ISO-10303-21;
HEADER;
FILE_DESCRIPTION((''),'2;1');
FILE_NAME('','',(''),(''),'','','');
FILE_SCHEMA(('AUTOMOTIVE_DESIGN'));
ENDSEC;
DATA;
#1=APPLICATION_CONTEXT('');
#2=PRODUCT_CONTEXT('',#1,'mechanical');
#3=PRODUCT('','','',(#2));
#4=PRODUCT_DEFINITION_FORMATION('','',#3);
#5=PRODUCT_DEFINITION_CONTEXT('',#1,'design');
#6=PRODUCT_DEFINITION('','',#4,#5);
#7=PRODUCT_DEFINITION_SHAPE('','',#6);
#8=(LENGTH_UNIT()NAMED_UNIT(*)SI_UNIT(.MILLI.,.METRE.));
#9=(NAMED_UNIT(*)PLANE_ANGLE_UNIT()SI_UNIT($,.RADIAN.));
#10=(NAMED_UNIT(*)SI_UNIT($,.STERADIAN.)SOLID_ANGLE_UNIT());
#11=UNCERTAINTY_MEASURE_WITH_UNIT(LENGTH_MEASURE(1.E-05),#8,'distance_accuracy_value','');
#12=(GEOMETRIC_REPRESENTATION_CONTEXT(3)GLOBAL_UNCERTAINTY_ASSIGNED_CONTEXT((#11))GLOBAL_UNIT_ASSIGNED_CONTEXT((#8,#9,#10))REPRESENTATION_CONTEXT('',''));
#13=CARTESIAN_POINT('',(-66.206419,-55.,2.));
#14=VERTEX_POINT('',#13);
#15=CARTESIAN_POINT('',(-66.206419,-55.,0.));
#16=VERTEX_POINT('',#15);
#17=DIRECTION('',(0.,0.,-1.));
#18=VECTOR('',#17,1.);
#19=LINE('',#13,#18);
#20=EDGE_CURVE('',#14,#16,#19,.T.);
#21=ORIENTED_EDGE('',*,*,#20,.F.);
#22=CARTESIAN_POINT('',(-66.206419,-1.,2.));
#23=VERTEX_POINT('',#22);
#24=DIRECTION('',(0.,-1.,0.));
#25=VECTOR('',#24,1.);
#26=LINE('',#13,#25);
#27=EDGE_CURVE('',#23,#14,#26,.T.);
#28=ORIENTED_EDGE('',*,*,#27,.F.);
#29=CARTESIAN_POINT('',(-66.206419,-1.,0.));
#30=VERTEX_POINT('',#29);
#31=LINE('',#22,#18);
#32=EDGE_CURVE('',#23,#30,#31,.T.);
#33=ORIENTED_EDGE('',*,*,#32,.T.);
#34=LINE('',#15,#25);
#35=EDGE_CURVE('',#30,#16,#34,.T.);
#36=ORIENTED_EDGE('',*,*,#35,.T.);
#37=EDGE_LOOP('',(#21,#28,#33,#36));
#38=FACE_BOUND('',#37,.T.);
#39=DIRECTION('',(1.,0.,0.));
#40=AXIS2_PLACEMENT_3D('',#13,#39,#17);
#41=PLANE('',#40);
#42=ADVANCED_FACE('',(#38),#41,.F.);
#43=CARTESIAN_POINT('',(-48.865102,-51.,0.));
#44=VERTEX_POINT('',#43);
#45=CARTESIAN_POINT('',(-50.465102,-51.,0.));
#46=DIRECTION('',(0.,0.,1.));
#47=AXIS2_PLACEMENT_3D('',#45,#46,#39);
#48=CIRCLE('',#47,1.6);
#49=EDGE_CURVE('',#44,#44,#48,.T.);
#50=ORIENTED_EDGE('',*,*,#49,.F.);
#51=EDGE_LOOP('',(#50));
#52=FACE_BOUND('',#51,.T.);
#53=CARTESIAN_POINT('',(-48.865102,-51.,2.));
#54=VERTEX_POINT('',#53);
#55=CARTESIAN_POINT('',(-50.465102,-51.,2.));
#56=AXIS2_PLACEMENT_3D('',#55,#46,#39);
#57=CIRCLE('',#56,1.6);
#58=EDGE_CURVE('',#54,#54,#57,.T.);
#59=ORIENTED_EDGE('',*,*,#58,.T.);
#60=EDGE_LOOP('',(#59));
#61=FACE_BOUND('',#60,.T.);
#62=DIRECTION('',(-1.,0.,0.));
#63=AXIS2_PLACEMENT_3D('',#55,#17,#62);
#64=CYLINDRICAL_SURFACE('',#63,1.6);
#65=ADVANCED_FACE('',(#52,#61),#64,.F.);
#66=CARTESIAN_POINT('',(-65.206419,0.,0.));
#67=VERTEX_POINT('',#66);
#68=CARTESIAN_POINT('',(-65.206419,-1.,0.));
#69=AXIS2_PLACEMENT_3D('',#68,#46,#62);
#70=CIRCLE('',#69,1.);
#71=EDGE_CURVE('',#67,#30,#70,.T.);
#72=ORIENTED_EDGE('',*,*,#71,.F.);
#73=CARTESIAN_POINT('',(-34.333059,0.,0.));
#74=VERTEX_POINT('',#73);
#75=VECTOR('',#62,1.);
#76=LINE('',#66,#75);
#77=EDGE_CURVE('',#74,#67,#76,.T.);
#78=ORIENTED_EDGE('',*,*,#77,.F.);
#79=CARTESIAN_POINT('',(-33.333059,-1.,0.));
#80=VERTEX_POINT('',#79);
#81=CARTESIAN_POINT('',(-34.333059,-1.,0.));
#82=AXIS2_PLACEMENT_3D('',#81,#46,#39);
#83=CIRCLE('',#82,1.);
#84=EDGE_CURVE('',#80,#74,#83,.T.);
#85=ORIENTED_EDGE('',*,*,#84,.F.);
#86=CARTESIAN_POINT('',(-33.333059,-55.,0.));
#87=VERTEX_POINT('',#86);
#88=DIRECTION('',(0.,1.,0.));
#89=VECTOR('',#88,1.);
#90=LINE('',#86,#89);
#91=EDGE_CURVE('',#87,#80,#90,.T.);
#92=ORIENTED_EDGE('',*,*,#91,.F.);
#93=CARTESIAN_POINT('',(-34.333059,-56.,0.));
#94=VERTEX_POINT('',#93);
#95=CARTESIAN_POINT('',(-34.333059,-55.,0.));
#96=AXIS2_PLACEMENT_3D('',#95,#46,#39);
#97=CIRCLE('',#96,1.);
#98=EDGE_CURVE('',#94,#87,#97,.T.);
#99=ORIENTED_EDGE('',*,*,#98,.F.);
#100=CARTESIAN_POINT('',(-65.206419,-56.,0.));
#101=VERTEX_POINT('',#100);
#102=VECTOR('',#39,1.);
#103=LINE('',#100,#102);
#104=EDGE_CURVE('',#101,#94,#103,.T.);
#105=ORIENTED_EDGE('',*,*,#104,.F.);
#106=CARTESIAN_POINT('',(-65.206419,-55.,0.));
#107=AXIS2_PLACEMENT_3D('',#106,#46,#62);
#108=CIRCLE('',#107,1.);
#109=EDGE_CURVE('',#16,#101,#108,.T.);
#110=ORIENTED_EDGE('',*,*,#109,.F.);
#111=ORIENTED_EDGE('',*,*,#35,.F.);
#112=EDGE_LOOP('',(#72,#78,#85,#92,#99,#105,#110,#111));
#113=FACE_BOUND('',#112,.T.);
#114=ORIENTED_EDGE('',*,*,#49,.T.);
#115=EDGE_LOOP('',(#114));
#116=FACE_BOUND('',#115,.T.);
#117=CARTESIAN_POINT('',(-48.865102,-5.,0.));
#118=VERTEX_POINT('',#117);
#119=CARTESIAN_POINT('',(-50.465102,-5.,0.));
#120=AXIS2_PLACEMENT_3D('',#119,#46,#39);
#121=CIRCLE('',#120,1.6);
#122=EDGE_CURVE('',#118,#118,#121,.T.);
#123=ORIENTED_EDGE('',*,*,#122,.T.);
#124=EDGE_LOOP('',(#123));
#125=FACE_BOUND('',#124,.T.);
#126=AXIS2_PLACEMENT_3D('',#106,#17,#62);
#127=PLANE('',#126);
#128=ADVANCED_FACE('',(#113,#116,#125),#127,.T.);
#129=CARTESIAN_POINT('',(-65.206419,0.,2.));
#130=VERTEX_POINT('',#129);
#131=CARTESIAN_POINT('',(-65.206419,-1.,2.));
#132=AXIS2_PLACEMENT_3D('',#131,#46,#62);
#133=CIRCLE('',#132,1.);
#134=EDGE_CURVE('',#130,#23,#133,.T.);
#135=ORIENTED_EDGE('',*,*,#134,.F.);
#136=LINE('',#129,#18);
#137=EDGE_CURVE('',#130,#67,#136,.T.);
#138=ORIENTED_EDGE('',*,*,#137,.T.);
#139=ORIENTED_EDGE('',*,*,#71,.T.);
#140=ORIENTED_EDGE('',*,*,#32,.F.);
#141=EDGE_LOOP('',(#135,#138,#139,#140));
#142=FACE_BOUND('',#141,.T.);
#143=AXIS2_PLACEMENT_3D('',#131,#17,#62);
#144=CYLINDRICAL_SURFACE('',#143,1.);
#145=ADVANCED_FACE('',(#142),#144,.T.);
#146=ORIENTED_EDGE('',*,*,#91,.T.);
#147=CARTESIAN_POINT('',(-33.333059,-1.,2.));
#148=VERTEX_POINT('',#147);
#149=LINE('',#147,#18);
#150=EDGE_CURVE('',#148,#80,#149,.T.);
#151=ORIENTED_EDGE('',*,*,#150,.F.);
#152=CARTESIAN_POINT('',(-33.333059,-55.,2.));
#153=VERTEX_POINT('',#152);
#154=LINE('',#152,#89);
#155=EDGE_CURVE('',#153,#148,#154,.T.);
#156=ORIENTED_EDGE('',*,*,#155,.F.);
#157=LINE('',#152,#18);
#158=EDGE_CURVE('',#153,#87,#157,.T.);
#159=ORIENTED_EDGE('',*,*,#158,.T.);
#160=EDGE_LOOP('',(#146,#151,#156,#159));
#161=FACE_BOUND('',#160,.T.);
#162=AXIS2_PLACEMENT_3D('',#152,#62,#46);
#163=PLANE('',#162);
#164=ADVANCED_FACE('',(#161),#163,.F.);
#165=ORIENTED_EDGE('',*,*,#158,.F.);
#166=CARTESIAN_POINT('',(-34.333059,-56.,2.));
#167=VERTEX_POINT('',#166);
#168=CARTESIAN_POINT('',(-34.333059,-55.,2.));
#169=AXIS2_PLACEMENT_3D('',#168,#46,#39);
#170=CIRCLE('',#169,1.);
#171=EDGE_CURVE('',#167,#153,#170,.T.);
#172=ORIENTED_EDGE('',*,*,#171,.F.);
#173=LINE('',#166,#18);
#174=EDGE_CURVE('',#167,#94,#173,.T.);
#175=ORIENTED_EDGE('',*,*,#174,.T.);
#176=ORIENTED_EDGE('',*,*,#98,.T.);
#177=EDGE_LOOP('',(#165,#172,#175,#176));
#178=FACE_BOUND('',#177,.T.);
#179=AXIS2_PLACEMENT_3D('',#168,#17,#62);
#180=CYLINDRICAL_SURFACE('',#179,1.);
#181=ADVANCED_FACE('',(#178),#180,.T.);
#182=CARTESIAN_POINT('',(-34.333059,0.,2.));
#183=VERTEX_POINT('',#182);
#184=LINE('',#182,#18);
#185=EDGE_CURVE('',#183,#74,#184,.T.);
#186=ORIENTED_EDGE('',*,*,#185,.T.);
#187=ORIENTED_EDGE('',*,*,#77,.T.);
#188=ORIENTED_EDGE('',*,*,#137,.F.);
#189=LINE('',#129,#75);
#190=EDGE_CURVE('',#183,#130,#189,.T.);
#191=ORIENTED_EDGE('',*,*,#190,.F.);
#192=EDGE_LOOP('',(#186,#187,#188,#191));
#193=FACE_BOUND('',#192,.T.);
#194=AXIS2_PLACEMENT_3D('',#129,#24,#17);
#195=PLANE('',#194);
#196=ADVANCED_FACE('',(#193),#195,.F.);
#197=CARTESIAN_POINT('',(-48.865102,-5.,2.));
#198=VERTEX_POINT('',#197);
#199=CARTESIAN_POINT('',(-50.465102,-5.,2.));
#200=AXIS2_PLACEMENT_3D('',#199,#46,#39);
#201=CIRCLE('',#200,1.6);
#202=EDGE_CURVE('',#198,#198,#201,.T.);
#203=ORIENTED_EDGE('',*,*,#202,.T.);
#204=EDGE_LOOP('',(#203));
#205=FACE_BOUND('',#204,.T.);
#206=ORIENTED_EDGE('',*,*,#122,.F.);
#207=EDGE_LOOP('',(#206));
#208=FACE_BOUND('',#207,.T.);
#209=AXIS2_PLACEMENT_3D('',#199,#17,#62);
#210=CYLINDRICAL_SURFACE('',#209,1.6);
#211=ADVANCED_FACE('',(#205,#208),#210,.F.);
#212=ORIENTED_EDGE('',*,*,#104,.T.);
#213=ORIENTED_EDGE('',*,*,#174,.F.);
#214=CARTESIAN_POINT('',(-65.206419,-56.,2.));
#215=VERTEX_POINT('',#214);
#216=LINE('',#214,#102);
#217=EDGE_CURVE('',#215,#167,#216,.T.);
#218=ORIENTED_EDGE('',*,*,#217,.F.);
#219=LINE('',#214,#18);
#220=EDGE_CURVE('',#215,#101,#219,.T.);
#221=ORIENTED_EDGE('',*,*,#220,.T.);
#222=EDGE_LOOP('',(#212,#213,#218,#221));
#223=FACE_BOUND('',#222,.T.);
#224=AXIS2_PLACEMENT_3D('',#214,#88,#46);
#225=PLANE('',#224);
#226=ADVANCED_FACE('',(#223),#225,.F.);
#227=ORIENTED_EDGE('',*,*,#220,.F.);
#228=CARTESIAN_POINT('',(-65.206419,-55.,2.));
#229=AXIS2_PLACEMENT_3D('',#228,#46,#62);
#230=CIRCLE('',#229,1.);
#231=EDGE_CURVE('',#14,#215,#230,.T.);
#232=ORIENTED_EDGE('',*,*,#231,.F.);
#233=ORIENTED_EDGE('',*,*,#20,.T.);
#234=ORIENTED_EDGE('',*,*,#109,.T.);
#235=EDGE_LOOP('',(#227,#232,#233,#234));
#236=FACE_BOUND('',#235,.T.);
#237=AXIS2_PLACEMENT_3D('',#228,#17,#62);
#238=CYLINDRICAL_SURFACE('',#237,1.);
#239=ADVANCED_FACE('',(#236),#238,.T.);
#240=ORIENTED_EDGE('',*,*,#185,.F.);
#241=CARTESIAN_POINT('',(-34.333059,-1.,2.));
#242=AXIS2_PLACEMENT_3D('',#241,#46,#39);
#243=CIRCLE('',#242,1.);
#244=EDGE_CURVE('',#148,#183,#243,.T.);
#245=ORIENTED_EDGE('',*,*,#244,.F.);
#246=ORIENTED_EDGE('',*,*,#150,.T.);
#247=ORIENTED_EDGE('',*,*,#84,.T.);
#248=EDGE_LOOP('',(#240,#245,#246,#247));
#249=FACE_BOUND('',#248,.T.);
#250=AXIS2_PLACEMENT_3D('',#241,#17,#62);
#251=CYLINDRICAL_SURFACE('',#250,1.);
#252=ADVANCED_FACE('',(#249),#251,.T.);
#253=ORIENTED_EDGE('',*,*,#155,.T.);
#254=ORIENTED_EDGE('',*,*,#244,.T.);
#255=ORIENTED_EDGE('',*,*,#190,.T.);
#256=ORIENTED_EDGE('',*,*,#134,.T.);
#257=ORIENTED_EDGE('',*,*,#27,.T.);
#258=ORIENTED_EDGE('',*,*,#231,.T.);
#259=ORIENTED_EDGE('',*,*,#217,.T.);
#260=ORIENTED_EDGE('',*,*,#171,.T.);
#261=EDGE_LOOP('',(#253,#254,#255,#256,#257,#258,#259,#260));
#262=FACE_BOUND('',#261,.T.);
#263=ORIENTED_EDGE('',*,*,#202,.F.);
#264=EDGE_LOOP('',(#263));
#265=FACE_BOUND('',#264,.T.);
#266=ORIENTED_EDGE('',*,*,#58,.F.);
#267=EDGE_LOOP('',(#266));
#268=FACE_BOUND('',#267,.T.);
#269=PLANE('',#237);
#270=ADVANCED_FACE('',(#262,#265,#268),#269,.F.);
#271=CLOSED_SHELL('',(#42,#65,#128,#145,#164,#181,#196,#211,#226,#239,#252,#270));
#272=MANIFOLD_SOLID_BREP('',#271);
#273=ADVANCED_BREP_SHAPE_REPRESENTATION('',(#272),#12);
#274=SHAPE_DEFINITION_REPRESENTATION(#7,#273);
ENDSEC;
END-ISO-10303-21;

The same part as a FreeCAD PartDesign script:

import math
import FreeCAD as App
import Part
import Sketcher

V = App.Vector
Q = App.Units.Quantity

doc = App.newDocument("Part")
body = doc.addObject("PartDesign::Body", "Body")

# Sketch on XY plane
sketch1 = doc.addObject("Sketcher::SketchObject", "Sketch")
body.addObject(sketch1)
sketch1.AttachmentSupport = (doc.XY_Plane, [""])
sketch1.MapMode = "FlatFace"
sketch1.addGeometry(Part.LineSegment(V(-65.2, -56, 0), V(-34.3, -56, 0)), False)
sketch1.addGeometry(Part.ArcOfCircle(Part.Circle(V(-34.3, -55, 0), V(0, 0, 1), 1), math.radians(-90), math.radians(0)), False)
sketch1.addGeometry(Part.LineSegment(V(-33.3, -55, 0), V(-33.3, -1, 0)), False)
sketch1.addGeometry(Part.ArcOfCircle(Part.Circle(V(-34.3, -1, 0), V(0, 0, 1), 1), math.radians(0), math.radians(90)), False)
sketch1.addGeometry(Part.LineSegment(V(-34.3, 0, 0), V(-65.2, 0, 0)), False)
sketch1.addGeometry(Part.ArcOfCircle(Part.Circle(V(-65.2, -1, 0), V(0, 0, 1), 1), math.radians(90), math.radians(180)), False)
sketch1.addGeometry(Part.LineSegment(V(-66.2, -1, 0), V(-66.2, -55, 0)), False)
sketch1.addGeometry(Part.ArcOfCircle(Part.Circle(V(-65.2, -55, 0), V(0, 0, 1), 1), math.radians(-180), math.radians(-90)), False)
sketch1.addGeometry(Part.Circle(V(-50.5, -51, 0), V(0, 0, 1), 1.6), False)
sketch1.addGeometry(Part.Circle(V(-50.5, -5, 0), V(0, 0, 1), 1.6), False)
sketch1.addConstraint(Sketcher.Constraint("Tangent", 0, 2, 1, 1))
sketch1.addConstraint(Sketcher.Constraint("Tangent", 1, 2, 2, 1))
sketch1.addConstraint(Sketcher.Constraint("Tangent", 2, 2, 3, 1))
sketch1.addConstraint(Sketcher.Constraint("Tangent", 3, 2, 4, 1))
sketch1.addConstraint(Sketcher.Constraint("Tangent", 4, 2, 5, 1))
sketch1.addConstraint(Sketcher.Constraint("Tangent", 5, 2, 6, 1))
sketch1.addConstraint(Sketcher.Constraint("Tangent", 6, 2, 7, 1))
sketch1.addConstraint(Sketcher.Constraint("Tangent", 7, 2, 0, 1))
sketch1.addConstraint(Sketcher.Constraint("Horizontal", 0))
sketch1.addConstraint(Sketcher.Constraint("Vertical", 2))
sketch1.addConstraint(Sketcher.Constraint("Horizontal", 4))
sketch1.addConstraint(Sketcher.Constraint("Vertical", 6))
sketch1.addConstraint(Sketcher.Constraint("Equal", 1, 3))
sketch1.addConstraint(Sketcher.Constraint("Equal", 3, 5))
sketch1.addConstraint(Sketcher.Constraint("Equal", 5, 7))
sketch1.addConstraint(Sketcher.Constraint("Equal", 8, 9))
sketch1.addConstraint(Sketcher.Constraint("PointOnObject", 3, 2, -1))
sketch1.addConstraint(Sketcher.Constraint("Vertical", 8, 3, 9, 3))
sketch1.addConstraint(Sketcher.Constraint("Radius", 1, Q("1 mm")))
sketch1.addConstraint(Sketcher.Constraint("Diameter", 8, Q("3.2 mm")))
sketch1.addConstraint(Sketcher.Constraint("DistanceY", 2, 1, 2, 2, Q("54 mm")))
sketch1.addConstraint(Sketcher.Constraint("DistanceY", 8, 3, -1, 1, Q("51 mm")))
sketch1.addConstraint(Sketcher.Constraint("DistanceY", 9, 3, -1, 1, Q("5 mm")))
sketch1.addConstraint(Sketcher.Constraint("DistanceX", 0, 1, 0, 2, Q("30.87336 mm")))
sketch1.addConstraint(Sketcher.Constraint("DistanceX", 1, 3, -1, 1, Q("34.333059 mm")))
sketch1.addConstraint(Sketcher.Constraint("DistanceX", 8, 3, -1, 1, Q("50.465102 mm")))
pad1 = doc.addObject("PartDesign::Pad", "Pad")
body.addObject(pad1)
pad1.Profile = sketch1
pad1.Length = 2

doc.recompute()
